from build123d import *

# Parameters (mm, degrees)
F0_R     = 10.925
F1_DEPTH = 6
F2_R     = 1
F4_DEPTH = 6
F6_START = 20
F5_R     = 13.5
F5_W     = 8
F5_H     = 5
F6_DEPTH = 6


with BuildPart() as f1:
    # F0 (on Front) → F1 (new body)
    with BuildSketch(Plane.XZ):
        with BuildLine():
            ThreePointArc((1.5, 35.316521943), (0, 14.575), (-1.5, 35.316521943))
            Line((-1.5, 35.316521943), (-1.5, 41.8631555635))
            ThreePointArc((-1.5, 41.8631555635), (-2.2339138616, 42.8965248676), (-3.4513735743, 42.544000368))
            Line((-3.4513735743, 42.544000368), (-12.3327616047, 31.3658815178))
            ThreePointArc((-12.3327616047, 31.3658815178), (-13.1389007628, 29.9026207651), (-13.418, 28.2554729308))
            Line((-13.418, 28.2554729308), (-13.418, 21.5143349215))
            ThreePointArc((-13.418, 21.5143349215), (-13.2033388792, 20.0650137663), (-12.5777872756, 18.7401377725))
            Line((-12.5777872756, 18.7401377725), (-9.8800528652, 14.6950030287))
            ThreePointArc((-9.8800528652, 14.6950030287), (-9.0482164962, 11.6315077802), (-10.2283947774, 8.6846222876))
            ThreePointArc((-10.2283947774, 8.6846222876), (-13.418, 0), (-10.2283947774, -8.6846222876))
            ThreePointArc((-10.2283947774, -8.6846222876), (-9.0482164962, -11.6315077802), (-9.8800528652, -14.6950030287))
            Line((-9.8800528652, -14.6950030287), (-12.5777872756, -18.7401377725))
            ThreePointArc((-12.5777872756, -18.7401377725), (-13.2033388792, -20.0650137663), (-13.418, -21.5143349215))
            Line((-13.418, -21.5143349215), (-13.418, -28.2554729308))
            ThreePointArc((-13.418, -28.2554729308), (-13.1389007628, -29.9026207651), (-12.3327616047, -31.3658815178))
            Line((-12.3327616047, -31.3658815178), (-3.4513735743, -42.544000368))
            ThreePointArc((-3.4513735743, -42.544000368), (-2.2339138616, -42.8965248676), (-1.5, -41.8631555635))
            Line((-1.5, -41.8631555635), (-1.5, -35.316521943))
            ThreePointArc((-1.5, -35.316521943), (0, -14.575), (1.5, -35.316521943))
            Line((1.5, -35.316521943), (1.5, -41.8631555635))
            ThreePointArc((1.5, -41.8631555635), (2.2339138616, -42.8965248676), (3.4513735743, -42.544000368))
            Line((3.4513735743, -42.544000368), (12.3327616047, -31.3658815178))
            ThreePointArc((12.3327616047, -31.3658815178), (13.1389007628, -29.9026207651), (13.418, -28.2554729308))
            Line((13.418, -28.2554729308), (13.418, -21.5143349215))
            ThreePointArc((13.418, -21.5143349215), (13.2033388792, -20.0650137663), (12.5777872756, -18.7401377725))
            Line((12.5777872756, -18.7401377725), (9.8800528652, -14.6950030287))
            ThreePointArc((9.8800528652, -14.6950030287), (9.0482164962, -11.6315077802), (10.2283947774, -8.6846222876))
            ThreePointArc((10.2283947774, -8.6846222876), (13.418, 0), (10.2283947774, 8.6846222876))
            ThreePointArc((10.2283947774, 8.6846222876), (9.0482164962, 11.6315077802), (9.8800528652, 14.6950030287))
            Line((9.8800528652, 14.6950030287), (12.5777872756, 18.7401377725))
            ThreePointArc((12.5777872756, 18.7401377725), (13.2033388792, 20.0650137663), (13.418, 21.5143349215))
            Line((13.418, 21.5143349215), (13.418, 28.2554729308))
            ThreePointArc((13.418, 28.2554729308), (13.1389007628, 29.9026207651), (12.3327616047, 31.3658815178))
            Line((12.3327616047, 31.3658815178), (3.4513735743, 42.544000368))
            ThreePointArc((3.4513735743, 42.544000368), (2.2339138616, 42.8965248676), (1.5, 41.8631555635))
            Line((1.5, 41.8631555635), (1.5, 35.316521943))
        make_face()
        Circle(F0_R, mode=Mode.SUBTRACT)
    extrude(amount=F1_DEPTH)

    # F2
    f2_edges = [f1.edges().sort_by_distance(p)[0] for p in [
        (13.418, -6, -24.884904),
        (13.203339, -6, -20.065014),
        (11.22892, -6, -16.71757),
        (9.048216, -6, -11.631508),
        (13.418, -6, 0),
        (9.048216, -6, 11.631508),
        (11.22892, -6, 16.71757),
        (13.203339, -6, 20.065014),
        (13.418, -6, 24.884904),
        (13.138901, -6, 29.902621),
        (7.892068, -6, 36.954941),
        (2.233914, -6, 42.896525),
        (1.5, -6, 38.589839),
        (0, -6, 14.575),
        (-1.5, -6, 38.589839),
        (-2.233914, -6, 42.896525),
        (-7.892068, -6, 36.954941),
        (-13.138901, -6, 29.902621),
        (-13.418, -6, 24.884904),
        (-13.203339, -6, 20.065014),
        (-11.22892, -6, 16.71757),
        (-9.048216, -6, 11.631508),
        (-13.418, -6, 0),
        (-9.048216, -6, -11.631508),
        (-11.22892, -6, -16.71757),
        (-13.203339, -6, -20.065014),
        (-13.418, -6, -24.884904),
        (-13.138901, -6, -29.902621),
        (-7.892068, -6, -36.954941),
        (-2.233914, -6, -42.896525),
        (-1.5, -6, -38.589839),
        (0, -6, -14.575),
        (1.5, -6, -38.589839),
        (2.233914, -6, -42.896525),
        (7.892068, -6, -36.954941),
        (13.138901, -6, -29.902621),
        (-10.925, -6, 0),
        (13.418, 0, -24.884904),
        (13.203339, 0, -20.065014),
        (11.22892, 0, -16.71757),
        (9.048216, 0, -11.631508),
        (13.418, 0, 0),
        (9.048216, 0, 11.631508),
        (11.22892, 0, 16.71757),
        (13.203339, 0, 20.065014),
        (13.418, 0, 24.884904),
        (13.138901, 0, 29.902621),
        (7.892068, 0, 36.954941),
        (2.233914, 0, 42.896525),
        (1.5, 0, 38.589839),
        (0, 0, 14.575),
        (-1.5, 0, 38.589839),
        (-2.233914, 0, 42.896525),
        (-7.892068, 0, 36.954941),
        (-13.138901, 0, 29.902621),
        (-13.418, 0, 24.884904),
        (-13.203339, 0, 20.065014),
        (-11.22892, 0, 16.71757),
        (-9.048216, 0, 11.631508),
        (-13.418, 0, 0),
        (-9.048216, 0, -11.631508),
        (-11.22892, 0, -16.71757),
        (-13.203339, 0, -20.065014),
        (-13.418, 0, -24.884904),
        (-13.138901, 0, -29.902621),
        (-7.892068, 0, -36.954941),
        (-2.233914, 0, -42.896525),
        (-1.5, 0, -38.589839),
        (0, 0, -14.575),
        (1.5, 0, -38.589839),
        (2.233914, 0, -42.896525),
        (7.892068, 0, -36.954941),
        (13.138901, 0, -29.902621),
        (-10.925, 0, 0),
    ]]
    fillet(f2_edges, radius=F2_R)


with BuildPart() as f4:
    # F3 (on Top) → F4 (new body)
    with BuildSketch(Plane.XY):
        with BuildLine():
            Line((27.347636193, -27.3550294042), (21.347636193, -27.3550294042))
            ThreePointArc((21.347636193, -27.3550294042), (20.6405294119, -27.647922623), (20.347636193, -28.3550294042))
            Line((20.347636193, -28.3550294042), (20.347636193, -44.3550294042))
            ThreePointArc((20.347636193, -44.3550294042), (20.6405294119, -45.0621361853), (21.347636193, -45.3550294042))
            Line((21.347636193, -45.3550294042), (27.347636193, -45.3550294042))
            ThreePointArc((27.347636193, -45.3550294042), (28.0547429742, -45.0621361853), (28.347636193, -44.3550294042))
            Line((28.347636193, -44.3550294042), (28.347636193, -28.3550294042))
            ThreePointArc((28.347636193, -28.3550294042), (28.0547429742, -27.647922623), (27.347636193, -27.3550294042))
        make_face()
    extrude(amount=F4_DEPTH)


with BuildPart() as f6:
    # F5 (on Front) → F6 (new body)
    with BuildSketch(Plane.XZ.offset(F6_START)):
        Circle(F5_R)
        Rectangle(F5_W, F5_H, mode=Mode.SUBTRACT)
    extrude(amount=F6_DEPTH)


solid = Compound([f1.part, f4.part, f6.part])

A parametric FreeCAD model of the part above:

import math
import FreeCAD as App
import Part
import Sketcher

V = App.Vector


def edges_at(feature, points):
    """Names of the edges that pass closest to the given points."""
    edges = feature.Shape.Edges
    near = lambda p: min(range(len(edges)), key=lambda i: edges[i].distToShape(Part.Vertex(*p))[0])
    return sorted({f"Edge{near(p) + 1}" for p in points})

doc = App.newDocument("Part")
body = doc.addObject("PartDesign::Body", "Body")

# Sketch on XZ plane
sketch1 = doc.addObject("Sketcher::SketchObject", "Sketch")
body.addObject(sketch1)
sketch1.AttachmentSupport = (doc.XZ_Plane, [""])
sketch1.MapMode = "FlatFace"
sketch1.addGeometry([
    Part.ArcOfCircle(Part.Circle(V(0, 25, 0), V(0, 0, 1), 10.425), math.radians(98.272711), math.radians(441.727289)),  # 0
    Part.LineSegment(V(-1.5, 35.316522, 0), V(-1.5, 41.863156, 0)),  # 1
    Part.ArcOfCircle(Part.Circle(V(-2.594462, 41.863156, 0), V(0, 0, 1), 1.094462), math.radians(0), math.radians(141.531688)),  # 2
    Part.LineSegment(V(-3.451374, 42.544, 0), V(-12.332762, 31.365882, 0)),  # 3
    Part.ArcOfCircle(Part.Circle(V(-8.418, 28.255473, 0), V(0, 0, 1), 5), math.radians(141.531688), math.radians(180)),  # 4
    Part.LineSegment(V(-13.418, 28.255473, 0), V(-13.418, 21.514335, 0)),  # 5
    Part.ArcOfCircle(Part.Circle(V(-8.418, 21.514335, 0), V(0, 0, 1), 5), math.radians(180), math.radians(213.699656)),  # 6
    Part.LineSegment(V(-12.577787, 18.740138, 0), V(-9.880053, 14.695003, 0)),  # 7
    Part.ArcOfCircle(Part.Circle(V(-14.03984, 11.920806, 0), V(0, 0, 1), 5), math.radians(-40.333585), math.radians(33.699656)),  # 8
    Part.ArcOfCircle(Part.Circle(V(0, 0, 0), V(0, 0, 1), 13.418), math.radians(139.666415), math.radians(220.333585)),  # 9
    Part.ArcOfCircle(Part.Circle(V(-14.03984, -11.920806, 0), V(0, 0, 1), 5), math.radians(-33.699656), math.radians(40.333585)),  # 10
    Part.LineSegment(V(-9.880053, -14.695003, 0), V(-12.577787, -18.740138, 0)),  # 11
    Part.ArcOfCircle(Part.Circle(V(-8.418, -21.514335, 0), V(0, 0, 1), 5), math.radians(146.300344), math.radians(180)),  # 12
    Part.LineSegment(V(-13.418, -21.514335, 0), V(-13.418, -28.255473, 0)),  # 13
    Part.ArcOfCircle(Part.Circle(V(-8.418, -28.255473, 0), V(0, 0, 1), 5), math.radians(180), math.radians(218.468312)),  # 14
    Part.LineSegment(V(-12.332762, -31.365882, 0), V(-3.451374, -42.544, 0)),  # 15
    Part.ArcOfCircle(Part.Circle(V(-2.594462, -41.863156, 0), V(0, 0, 1), 1.094462), math.radians(-141.531688), math.radians(0)),  # 16
    Part.LineSegment(V(-1.5, -41.863156, 0), V(-1.5, -35.316522, 0)),  # 17
    Part.ArcOfCircle(Part.Circle(V(0, -25, 0), V(0, 0, 1), 10.425), math.radians(-81.727289), math.radians(261.727289)),  # 18
    Part.LineSegment(V(1.5, -35.316522, 0), V(1.5, -41.863156, 0)),  # 19
    Part.ArcOfCircle(Part.Circle(V(2.594462, -41.863156, 0), V(0, 0, 1), 1.094462), math.radians(180), math.radians(321.531688)),  # 20
    Part.LineSegment(V(3.451374, -42.544, 0), V(12.332762, -31.365882, 0)),  # 21
    Part.ArcOfCircle(Part.Circle(V(8.418, -28.255473, 0), V(0, 0, 1), 5), math.radians(-38.468312), math.radians(0)),  # 22
    Part.LineSegment(V(13.418, -28.255473, 0), V(13.418, -21.514335, 0)),  # 23
    Part.ArcOfCircle(Part.Circle(V(8.418, -21.514335, 0), V(0, 0, 1), 5), math.radians(0), math.radians(33.699656)),  # 24
    Part.LineSegment(V(12.577787, -18.740138, 0), V(9.880053, -14.695003, 0)),  # 25
    Part.ArcOfCircle(Part.Circle(V(14.03984, -11.920806, 0), V(0, 0, 1), 5), math.radians(139.666415), math.radians(213.699656)),  # 26
    Part.ArcOfCircle(Part.Circle(V(0, 0, 0), V(0, 0, 1), 13.418), math.radians(-40.333585), math.radians(40.333585)),  # 27
    Part.ArcOfCircle(Part.Circle(V(14.03984, 11.920806, 0), V(0, 0, 1), 5), math.radians(146.300344), math.radians(220.333585)),  # 28
    Part.LineSegment(V(9.880053, 14.695003, 0), V(12.577787, 18.740138, 0)),  # 29
    Part.ArcOfCircle(Part.Circle(V(8.418, 21.514335, 0), V(0, 0, 1), 5), math.radians(-33.699656), math.radians(0)),  # 30
    Part.LineSegment(V(13.418, 21.514335, 0), V(13.418, 28.255473, 0)),  # 31
    Part.ArcOfCircle(Part.Circle(V(8.418, 28.255473, 0), V(0, 0, 1), 5), math.radians(0), math.radians(38.468312)),  # 32
    Part.LineSegment(V(12.332762, 31.365882, 0), V(3.451374, 42.544, 0)),  # 33
    Part.ArcOfCircle(Part.Circle(V(2.594462, 41.863156, 0), V(0, 0, 1), 1.094462), math.radians(38.468312), math.radians(180)),  # 34
    Part.LineSegment(V(1.5, 41.863156, 0), V(1.5, 35.316522, 0)),  # 35
    Part.Circle(V(0, 0, 0), V(0, 0, 1), 10.925),  # 36
], False)
sketch1.addConstraint([
    Sketcher.Constraint("Coincident", 0, 1, 1, 1),
    Sketcher.Constraint("Coincident", 1, 2, 2, 1),
    Sketcher.Constraint("Coincident", 2, 2, 3, 1),
    Sketcher.Constraint("Coincident", 3, 2, 4, 1),
    Sketcher.Constraint("Coincident", 4, 2, 5, 1),
    Sketcher.Constraint("Coincident", 5, 2, 6, 1),
    Sketcher.Constraint("Coincident", 6, 2, 7, 1),
    Sketcher.Constraint("Coincident", 7, 2, 8, 2),
    Sketcher.Constraint("Coincident", 8, 1, 9, 1),
    Sketcher.Constraint("Coincident", 9, 2, 10, 2),
    Sketcher.Constraint("Coincident", 10, 1, 11, 1),
    Sketcher.Constraint("Coincident", 11, 2, 12, 1),
    Sketcher.Constraint("Coincident", 12, 2, 13, 1),
    Sketcher.Constraint("Coincident", 13, 2, 14, 1),
    Sketcher.Constraint("Coincident", 14, 2, 15, 1),
    Sketcher.Constraint("Coincident", 15, 2, 16, 1),
    Sketcher.Constraint("Coincident", 16, 2, 17, 1),
    Sketcher.Constraint("Coincident", 17, 2, 18, 2),
    Sketcher.Constraint("Coincident", 18, 1, 19, 1),
    Sketcher.Constraint("Coincident", 19, 2, 20, 1),
    Sketcher.Constraint("Coincident", 20, 2, 21, 1),
    Sketcher.Constraint("Coincident", 21, 2, 22, 1),
    Sketcher.Constraint("Coincident", 22, 2, 23, 1),
    Sketcher.Constraint("Coincident", 23, 2, 24, 1),
    Sketcher.Constraint("Coincident", 24, 2, 25, 1),
    Sketcher.Constraint("Coincident", 25, 2, 26, 2),
    Sketcher.Constraint("Coincident", 26, 1, 27, 1),
    Sketcher.Constraint("Coincident", 27, 2, 28, 2),
    Sketcher.Constraint("Coincident", 28, 1, 29, 1),
    Sketcher.Constraint("Coincident", 29, 2, 30, 1),
    Sketcher.Constraint("Coincident", 30, 2, 31, 1),
    Sketcher.Constraint("Coincident", 31, 2, 32, 1),
    Sketcher.Constraint("Coincident", 32, 2, 33, 1),
    Sketcher.Constraint("Coincident", 33, 2, 34, 1),
    Sketcher.Constraint("Coincident", 34, 2, 35, 1),
    Sketcher.Constraint("Coincident", 35, 2, 0, 2),
    Sketcher.Constraint("Vertical", 1),
    Sketcher.Constraint("Vertical", 5),
    Sketcher.Constraint("Vertical", 13),
    Sketcher.Constraint("Vertical", 17),
    Sketcher.Constraint("Vertical", 19),
    Sketcher.Constraint("Vertical", 23),
    Sketcher.Constraint("Vertical", 31),
    Sketcher.Constraint("Vertical", 35),
    Sketcher.Constraint("Coincident", 9, 3, -1, 1),
    Sketcher.Constraint("Coincident", 27, 3, -1, 1),
    Sketcher.Constraint("Coincident", 36, 3, -1, 1),
    Sketcher.Constraint("PointOnObject", 0, 3, -2),
    Sketcher.Constraint("PointOnObject", 18, 3, -2),
    Sketcher.Constraint("Radius", 4, 5.0),
    Sketcher.Constraint("Radius", 6, 5.0),
    Sketcher.Constraint("Radius", 8, 5.0),
    Sketcher.Constraint("Radius", 10, 5.0),
    Sketcher.Constraint("Radius", 12, 5.0),
    Sketcher.Constraint("Radius", 14, 5.0),
    Sketcher.Constraint("Radius", 22, 5.0),
    Sketcher.Constraint("Radius", 24, 5.0),
    Sketcher.Constraint("Radius", 26, 5.0),
    Sketcher.Constraint("Radius", 28, 5.0),
    Sketcher.Constraint("Radius", 30, 5.0),
    Sketcher.Constraint("Radius", 32, 5.0),
    Sketcher.Constraint("Diameter", 36, 21.85),
    Sketcher.Constraint("DistanceY", -1, 1, 0, 3, 25.0),
    Sketcher.Constraint("DistanceY", 18, 3, -1, 1, 25.0),
    Sketcher.Constraint("Radius", 0, 10.425),
    Sketcher.Constraint("Radius", 9, 13.418),
    Sketcher.Constraint("Radius", 18, 10.425),
    Sketcher.Constraint("Radius", 27, 13.418),
    Sketcher.Constraint("DistanceX", 17, 2, 18, 1, 3.0),
    Sketcher.Constraint("DistanceX", 1, 2, 34, 2, 3.0),
    Sketcher.Constraint("DistanceX", 0, 1, -1, 1, 1.5),
    Sketcher.Constraint("DistanceX", 16, 2, -1, 1, 1.5),
    Sketcher.Constraint("DistanceX", 4, 3, -1, 1, 8.418),
    Sketcher.Constraint("DistanceX", 12, 3, -1, 1, 8.418),
    Sketcher.Constraint("DistanceX", -1, 1, 22, 3, 8.418),
    Sketcher.Constraint("DistanceX", -1, 1, 30, 3, 8.418),
    Sketcher.Constraint("DistanceY", -1, 1, 2, 2, 42.544),
    Sketcher.Constraint("DistanceY", 15, 2, -1, 1, 42.544),
    Sketcher.Constraint("DistanceY", 20, 2, -1, 1, 42.544),
    Sketcher.Constraint("DistanceY", -1, 1, 33, 2, 42.544),
    Sketcher.Constraint("Radius", 2, 1.094462),
    Sketcher.Constraint("Radius", 16, 1.094462),
    Sketcher.Constraint("Radius", 20, 1.094462),
    Sketcher.Constraint("Radius", 34, 1.094462),
    Sketcher.Constraint("DistanceY", 5, 2, 5, 1, 6.741138),
    Sketcher.Constraint("DistanceY", 13, 2, 13, 1, 6.741138),
    Sketcher.Constraint("DistanceY", 23, 1, 23, 2, 6.741138),
    Sketcher.Constraint("DistanceY", 31, 1, 31, 2, 6.741138),
    Sketcher.Constraint("Distance", 7, 4.862189),
    Sketcher.Constraint("Distance", 11, 4.862189),
    Sketcher.Constraint("Distance", 25, 4.862189),
    Sketcher.Constraint("Distance", 29, 4.862189),
    Sketcher.Constraint("DistanceY", 1, 1, 1, 2, 6.546634),
    Sketcher.Constraint("DistanceY", 17, 1, 17, 2, 6.546634),
    Sketcher.Constraint("DistanceY", 19, 2, 19, 1, 6.546634),
    Sketcher.Constraint("DistanceY", 35, 2, 35, 1, 6.546634),
    Sketcher.Constraint("DistanceX", 8, 3, -1, 1, 14.03984),
    Sketcher.Constraint("DistanceX", 10, 3, -1, 1, 14.03984),
    Sketcher.Constraint("DistanceX", -1, 1, 26, 3, 14.03984),
    Sketcher.Constraint("DistanceX", -1, 1, 28, 3, 14.03984),
    Sketcher.Constraint("DistanceX", 3, 2, -1, 1, 12.332762),
    Sketcher.Constraint("DistanceY", -1, 1, 3, 2, 31.365882),
    Sketcher.Constraint("DistanceX", 14, 2, -1, 1, 12.332762),
    Sketcher.Constraint("DistanceY", 14, 2, -1, 1, 31.365882),
    Sketcher.Constraint("DistanceX", -1, 1, 21, 2, 12.332762),
    Sketcher.Constraint("DistanceY", 21, 2, -1, 1, 31.365882),
    Sketcher.Constraint("DistanceX", -1, 1, 32, 2, 12.332762),
    Sketcher.Constraint("DistanceY", -1, 1, 32, 2, 31.365882),
    Sketcher.Constraint("DistanceY", 6, 3, 4, 3, 6.741138),
    Sketcher.Constraint("DistanceY", 6, 3, 2, 3, 20.348821),
    Sketcher.Constraint("DistanceY", 12, 3, 10, 3, 9.593529),
    Sketcher.Constraint("DistanceY", 16, 3, 12, 3, 20.348821),
    Sketcher.Constraint("DistanceY", 20, 3, 12, 3, 20.348821),
    Sketcher.Constraint("DistanceY", 22, 3, 24, 3, 6.741138),
    Sketcher.Constraint("DistanceY", 28, 3, 30, 3, 9.593529),
    Sketcher.Constraint("DistanceY", 30, 3, 34, 3, 20.348821),
    Sketcher.Constraint("DistanceY", 4, 2, 3, 2, 3.110409),
    Sketcher.Constraint("DistanceY", 8, 3, 6, 2, 6.819332),
    Sketcher.Constraint("DistanceX", 8, 1, 7, 2, 0.348342),
    Sketcher.Constraint("DistanceX", 9, 2, 10, 1, 0.348342),
    Sketcher.Constraint("DistanceY", 10, 1, 9, 2, 6.010381),
    Sketcher.Constraint("DistanceY", 12, 2, 10, 1, 6.819332),
    Sketcher.Constraint("DistanceY", 21, 2, 22, 2, 3.110409),
    Sketcher.Constraint("DistanceY", 24, 2, 26, 3, 6.819332),
    Sketcher.Constraint("DistanceX", 25, 2, 26, 1, 0.348342),
    Sketcher.Constraint("DistanceX", 28, 1, 27, 2, 0.348342),
    Sketcher.Constraint("DistanceY", 27, 2, 28, 1, 6.010381),
    Sketcher.Constraint("DistanceY", 28, 1, 30, 2, 6.819332),
])
pad1 = doc.addObject("PartDesign::Pad", "Pad")
body.addObject(pad1)
pad1.Profile = sketch1
pad1.Length = 6
doc.recompute()

fillet = doc.addObject("PartDesign::Fillet", "Fillet")
body.addObject(fillet)
fillet.Base = (pad1, edges_at(pad1, [
    (13.418, -6, -24.885),
    (13.203, -6, -20.065),
    (11.229, -6, -16.718),
    (9.048, -6, -11.632),
    (13.418, -6, 0),
    (9.048, -6, 11.632),
    (11.229, -6, 16.718),
    (13.203, -6, 20.065),
    (13.418, -6, 24.885),
    (13.139, -6, 29.903),
    (7.892, -6, 36.955),
    (2.234, -6, 42.897),
    (1.5, -6, 38.59),
    (0, -6, 14.575),
    (-1.5, -6, 38.59),
    (-2.234, -6, 42.897),
    (-7.892, -6, 36.955),
    (-13.139, -6, 29.903),
    (-13.418, -6, 24.885),
    (-13.203, -6, 20.065),
    (-11.229, -6, 16.718),
    (-9.048, -6, 11.632),
    (-13.418, -6, 0),
    (-9.048, -6, -11.632),
    (-11.229, -6, -16.718),
    (-13.203, -6, -20.065),
    (-13.418, -6, -24.885),
    (-13.139, -6, -29.903),
    (-7.892, -6, -36.955),
    (-2.234, -6, -42.897),
    (-1.5, -6, -38.59),
    (0, -6, -14.575),
    (1.5, -6, -38.59),
    (2.234, -6, -42.897),
    (7.892, -6, -36.955),
    (13.139, -6, -29.903),
    (-10.925, -6, 0),
    (13.418, 0, -24.885),
    (13.203, 0, -20.065),
    (11.229, 0, -16.718),
    (9.048, 0, -11.632),
    (13.418, 0, 0),
    (9.048, 0, 11.632),
    (11.229, 0, 16.718),
    (13.203, 0, 20.065),
    (13.418, 0, 24.885),
    (13.139, 0, 29.903),
    (7.892, 0, 36.955),
    (2.234, 0, 42.897),
    (1.5, 0, 38.59),
    (0, 0, 14.575),
    (-1.5, 0, 38.59),
    (-2.234, 0, 42.897),
    (-7.892, 0, 36.955),
    (-13.139, 0, 29.903),
    (-13.418, 0, 24.885),
    (-13.203, 0, 20.065),
    (-11.229, 0, 16.718),
    (-9.048, 0, 11.632),
    (-13.418, 0, 0),
    (-9.048, 0, -11.632),
    (-11.229, 0, -16.718),
    (-13.203, 0, -20.065),
    (-13.418, 0, -24.885),
    (-13.139, 0, -29.903),
    (-7.892, 0, -36.955),
    (-2.234, 0, -42.897),
    (-1.5, 0, -38.59),
    (0, 0, -14.575),
    (1.5, 0, -38.59),
    (2.234, 0, -42.897),
    (7.892, 0, -36.955),
    (13.139, 0, -29.903),
    (-10.925, 0, 0),
]))
fillet.Radius = 1
body2 = doc.addObject("PartDesign::Body", "Body001")

# Sketch on XY plane
sketch2 = doc.addObject("Sketcher::SketchObject", "Sketch001")
body2.addObject(sketch2)
sketch2.AttachmentSupport = (doc.getObject("XY_Plane001"), [""])
sketch2.MapMode = "FlatFace"
sketch2.addGeometry([
    Part.LineSegment(V(27.347636, -27.355029, 0), V(21.347636, -27.355029, 0)),  # 0
    Part.ArcOfCircle(Part.Circle(V(21.347636, -28.355029, 0), V(0, 0, 1), 1), math.radians(90), math.radians(180)),  # 1
    Part.LineSegment(V(20.347636, -28.355029, 0), V(20.347636, -44.355029, 0)),  # 2
    Part.ArcOfCircle(Part.Circle(V(21.347636, -44.355029, 0), V(0, 0, 1), 1), math.radians(180), math.radians(270)),  # 3
    Part.LineSegment(V(21.347636, -45.355029, 0), V(27.347636, -45.355029, 0)),  # 4
    Part.ArcOfCircle(Part.Circle(V(27.347636, -44.355029, 0), V(0, 0, 1), 1), math.radians(-90), math.radians(0)),  # 5
    Part.LineSegment(V(28.347636, -44.355029, 0), V(28.347636, -28.355029, 0)),  # 6
    Part.ArcOfCircle(Part.Circle(V(27.347636, -28.355029, 0), V(0, 0, 1), 1), math.radians(0), math.radians(90)),  # 7
], False)
sketch2.addConstraint([
    Sketcher.Constraint("Tangent", 0, 2, 1, 1),
    Sketcher.Constraint("Tangent", 1, 2, 2, 1),
    Sketcher.Constraint("Tangent", 2, 2, 3, 1),
    Sketcher.Constraint("Tangent", 3, 2, 4, 1),
    Sketcher.Constraint("Tangent", 4, 2, 5, 1),
    Sketcher.Constraint("Tangent", 5, 2, 6, 1),
    Sketcher.Constraint("Tangent", 6, 2, 7, 1),
    Sketcher.Constraint("Tangent", 7, 2, 0, 1),
    Sketcher.Constraint("Horizontal", 0),
    Sketcher.Constraint("Vertical", 2),
    Sketcher.Constraint("Horizontal", 4),
    Sketcher.Constraint("Vertical", 6),
    Sketcher.Constraint("Equal", 1, 3),
    Sketcher.Constraint("Equal", 3, 5),
    Sketcher.Constraint("Equal", 5, 7),
    Sketcher.Constraint("Radius", 1, 1.0),
    Sketcher.Constraint("DistanceX", 0, 2, 0, 1, 6.0),
    Sketcher.Constraint("DistanceY", 2, 2, 2, 1, 16.0),
    Sketcher.Constraint("DistanceY", 1, 3, -1, 1, 28.355029),
    Sketcher.Constraint("DistanceX", -1, 1, 1, 3, 21.347636),
])
pad2 = doc.addObject("PartDesign::Pad", "Pad001")
body2.addObject(pad2)
pad2.Profile = sketch2
pad2.Length = 6
body3 = doc.addObject("PartDesign::Body", "Body002")

# Sketch on XZ plane
sketch3 = doc.addObject("Sketcher::SketchObject", "Sketch002")
body3.addObject(sketch3)
sketch3.AttachmentSupport = (doc.getObject("XZ_Plane002"), [""])
sketch3.MapMode = "FlatFace"
sketch3.AttachmentOffset = App.Placement(V(0, 0, 20), App.Rotation())
sketch3.addGeometry([
    Part.Circle(V(0, 0, 0), V(0, 0, 1), 13.5),  # 0
    Part.LineSegment(V(4, -2.5, 0), V(-4, -2.5, 0)),  # 1
    Part.LineSegment(V(-4, -2.5, 0), V(-4, 2.5, 0)),  # 2
    Part.LineSegment(V(-4, 2.5, 0), V(4, 2.5, 0)),  # 3
    Part.LineSegment(V(4, 2.5, 0), V(4, -2.5, 0)),  # 4
], False)
sketch3.addConstraint([
    Sketcher.Constraint("Coincident", 1, 2, 2, 1),
    Sketcher.Constraint("Coincident", 2, 2, 3, 1),
    Sketcher.Constraint("Coincident", 3, 2, 4, 1),
    Sketcher.Constraint("Coincident", 4, 2, 1, 1),
    Sketcher.Constraint("Horizontal", 1),
    Sketcher.Constraint("Vertical", 2),
    Sketcher.Constraint("Horizontal", 3),
    Sketcher.Constraint("Vertical", 4),
    Sketcher.Constraint("Coincident", 0, 3, -1, 1),
    Sketcher.Constraint("Symmetric", 1, 2, 3, 2, -1, 1),
    Sketcher.Constraint("Diameter", 0, 27.0),
    Sketcher.Constraint("DistanceX", 1, 2, 1, 1, 8.0),
    Sketcher.Constraint("DistanceY", 2, 1, 2, 2, 5.0),
])
pad3 = doc.addObject("PartDesign::Pad", "Pad002")
body3.addObject(pad3)
pad3.Profile = sketch3
pad3.Length = 6

doc.recompute()
